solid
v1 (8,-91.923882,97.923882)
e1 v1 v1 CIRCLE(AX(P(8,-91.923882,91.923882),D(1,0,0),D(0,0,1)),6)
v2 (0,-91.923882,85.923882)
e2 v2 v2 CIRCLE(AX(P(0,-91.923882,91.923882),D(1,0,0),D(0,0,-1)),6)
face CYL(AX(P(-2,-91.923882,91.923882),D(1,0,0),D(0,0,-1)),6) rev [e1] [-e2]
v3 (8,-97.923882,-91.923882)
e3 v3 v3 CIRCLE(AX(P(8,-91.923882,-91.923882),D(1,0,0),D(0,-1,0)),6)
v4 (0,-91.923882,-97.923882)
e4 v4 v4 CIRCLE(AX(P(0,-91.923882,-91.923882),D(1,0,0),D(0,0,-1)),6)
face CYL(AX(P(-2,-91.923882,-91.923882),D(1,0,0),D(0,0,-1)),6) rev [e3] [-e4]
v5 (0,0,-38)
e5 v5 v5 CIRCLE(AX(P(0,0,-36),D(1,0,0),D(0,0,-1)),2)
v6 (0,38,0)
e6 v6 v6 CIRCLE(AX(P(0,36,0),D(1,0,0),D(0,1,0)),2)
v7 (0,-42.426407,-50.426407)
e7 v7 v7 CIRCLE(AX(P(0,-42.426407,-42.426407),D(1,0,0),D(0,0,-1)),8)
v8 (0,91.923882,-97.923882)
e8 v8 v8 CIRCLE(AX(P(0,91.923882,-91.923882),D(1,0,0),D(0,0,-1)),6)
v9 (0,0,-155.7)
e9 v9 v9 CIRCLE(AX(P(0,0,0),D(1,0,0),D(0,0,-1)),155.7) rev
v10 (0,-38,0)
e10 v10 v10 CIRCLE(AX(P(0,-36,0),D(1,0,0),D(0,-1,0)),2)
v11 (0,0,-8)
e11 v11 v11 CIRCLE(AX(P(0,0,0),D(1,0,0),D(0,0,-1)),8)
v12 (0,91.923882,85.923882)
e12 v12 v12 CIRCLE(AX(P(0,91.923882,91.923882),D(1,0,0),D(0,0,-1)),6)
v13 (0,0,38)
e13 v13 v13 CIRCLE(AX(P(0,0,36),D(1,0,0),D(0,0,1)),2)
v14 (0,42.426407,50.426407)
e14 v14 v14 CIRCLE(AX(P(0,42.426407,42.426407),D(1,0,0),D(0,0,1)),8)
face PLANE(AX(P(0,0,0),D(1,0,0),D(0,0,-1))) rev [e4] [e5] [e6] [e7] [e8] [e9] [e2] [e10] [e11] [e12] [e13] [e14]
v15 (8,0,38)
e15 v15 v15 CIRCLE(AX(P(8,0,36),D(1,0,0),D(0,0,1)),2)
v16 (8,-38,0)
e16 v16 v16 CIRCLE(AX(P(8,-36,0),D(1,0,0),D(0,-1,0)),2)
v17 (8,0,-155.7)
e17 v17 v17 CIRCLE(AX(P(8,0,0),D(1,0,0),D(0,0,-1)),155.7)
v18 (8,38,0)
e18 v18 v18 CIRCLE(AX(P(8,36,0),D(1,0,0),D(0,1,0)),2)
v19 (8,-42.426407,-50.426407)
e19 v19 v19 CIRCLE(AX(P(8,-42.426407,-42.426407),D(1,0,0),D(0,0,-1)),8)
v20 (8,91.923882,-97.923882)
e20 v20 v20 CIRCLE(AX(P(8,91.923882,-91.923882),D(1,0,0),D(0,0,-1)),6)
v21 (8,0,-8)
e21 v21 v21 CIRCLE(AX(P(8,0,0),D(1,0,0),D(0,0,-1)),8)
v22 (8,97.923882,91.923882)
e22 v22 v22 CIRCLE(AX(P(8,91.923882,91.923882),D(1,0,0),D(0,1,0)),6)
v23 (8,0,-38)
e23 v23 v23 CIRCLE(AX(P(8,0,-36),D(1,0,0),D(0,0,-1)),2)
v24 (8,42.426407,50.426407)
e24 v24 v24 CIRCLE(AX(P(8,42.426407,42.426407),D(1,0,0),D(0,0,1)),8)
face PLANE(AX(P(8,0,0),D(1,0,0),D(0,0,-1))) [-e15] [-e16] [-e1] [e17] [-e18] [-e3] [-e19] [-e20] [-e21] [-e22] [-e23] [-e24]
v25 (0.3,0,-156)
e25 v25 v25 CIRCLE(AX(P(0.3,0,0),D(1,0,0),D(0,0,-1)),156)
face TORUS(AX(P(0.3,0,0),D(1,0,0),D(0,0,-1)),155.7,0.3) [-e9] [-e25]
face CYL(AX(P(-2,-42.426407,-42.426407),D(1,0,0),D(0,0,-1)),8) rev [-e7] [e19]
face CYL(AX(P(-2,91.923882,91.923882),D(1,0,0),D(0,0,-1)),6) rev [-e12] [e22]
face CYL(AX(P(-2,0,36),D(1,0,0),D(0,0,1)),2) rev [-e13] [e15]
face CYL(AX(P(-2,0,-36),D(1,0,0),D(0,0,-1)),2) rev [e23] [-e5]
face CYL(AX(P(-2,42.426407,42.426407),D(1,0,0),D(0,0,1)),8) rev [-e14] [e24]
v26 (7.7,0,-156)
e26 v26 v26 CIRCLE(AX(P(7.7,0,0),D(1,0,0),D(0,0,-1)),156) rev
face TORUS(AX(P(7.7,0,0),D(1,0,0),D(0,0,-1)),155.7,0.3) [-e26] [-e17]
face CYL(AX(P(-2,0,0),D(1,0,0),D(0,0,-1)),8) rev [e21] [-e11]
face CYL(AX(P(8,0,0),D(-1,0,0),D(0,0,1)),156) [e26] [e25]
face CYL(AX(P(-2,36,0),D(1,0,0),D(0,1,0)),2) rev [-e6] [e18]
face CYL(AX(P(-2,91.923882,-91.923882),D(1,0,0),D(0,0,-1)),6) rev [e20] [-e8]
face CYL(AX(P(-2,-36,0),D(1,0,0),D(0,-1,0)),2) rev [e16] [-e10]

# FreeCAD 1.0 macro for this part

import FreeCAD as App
import Part
import Sketcher


def edges_at(feature, points):
    """Names of the edges that pass closest to the given points."""
    edges = feature.Shape.Edges
    near = lambda p: min(range(len(edges)), key=lambda i: edges[i].distToShape(Part.Vertex(*p))[0])
    return sorted({f"Edge{near(p) + 1}" for p in points})

doc = App.newDocument("Part")
body = doc.addObject("PartDesign::Body", "Body")

# Sketch on YZ plane
sketch1 = body.newObject("Sketcher::SketchObject", "Sketch")
sketch1.AttachmentSupport = (doc.getObject("YZ_Plane"), [""])
sketch1.MapMode = "FlatFace"
sketch1.addGeometry(Part.Circle(App.Vector(0, 0, 0), App.Vector(0, 0, 1), 156), False)
sketch1.addConstraint(Sketcher.Constraint("Coincident", 0, 3, -1, 1))
sketch1.addConstraint(Sketcher.Constraint("Diameter", 0, 312.0))
pad1 = body.newObject("PartDesign::Pad", "Pad")
pad1.Profile = sketch1
pad1.Length = 8

# Sketch on YZ plane
sketch2 = body.newObject("Sketcher::SketchObject", "Sketch001")
sketch2.AttachmentSupport = (doc.getObject("YZ_Plane"), [""])
sketch2.MapMode = "FlatFace"
sketch2.AttachmentOffset = App.Placement(App.Vector(0, 0, 8), App.Rotation())
sketch2.addGeometry(Part.Circle(App.Vector(91.923882, -91.923882, 0), App.Vector(0, 0, 1), 6), False)
sketch2.addConstraint(Sketcher.Constraint("Diameter", 0, 12.0))
sketch2.addConstraint(Sketcher.Constraint("DistanceX", -1, 1, 0, 3, 91.923882))
sketch2.addConstraint(Sketcher.Constraint("DistanceY", 0, 3, -1, 1, 91.923882))
pocket1 = body.newObject("PartDesign::Pocket", "Pocket")
pocket1.Profile = sketch2
pocket1.Length = 10
doc.recompute()

polarpattern = body.newObject("PartDesign::PolarPattern", "PolarPattern")
polarpattern.Originals = [pocket1]
polarpattern.Axis = (doc.getObject("X_Axis"), [""])
polarpattern.Angle = 360
polarpattern.Occurrences = 4
body.Tip = polarpattern
doc.recompute()

fillet = body.newObject("PartDesign::Fillet", "Fillet")
fillet.Base = (polarpattern, edges_at(polarpattern, [(0, 0, 156), (8, 0, 156)]))
fillet.Radius = 0.3

# Sketch on YZ plane
sketch3 = body.newObject("Sketcher::SketchObject", "Sketch002")
sketch3.AttachmentSupport = (doc.getObject("YZ_Plane"), [""])
sketch3.MapMode = "FlatFace"
sketch3.AttachmentOffset = App.Placement(App.Vector(0, 0, 8), App.Rotation())
sketch3.addGeometry(Part.Circle(App.Vector(-42.426407, -42.426407, 0), App.Vector(0, 0, 1), 8), False)
sketch3.addConstraint(Sketcher.Constraint("Diameter", 0, 16.0))
sketch3.addConstraint(Sketcher.Constraint("DistanceX", 0, 3, -1, 1, 42.426407))
sketch3.addConstraint(Sketcher.Constraint("DistanceY", 0, 3, -1, 1, 42.426407))
pocket2 = body.newObject("PartDesign::Pocket", "Pocket001")
pocket2.Profile = sketch3
pocket2.Length = 10
doc.recompute()

polarpattern2 = body.newObject("PartDesign::PolarPattern", "PolarPattern001")
polarpattern2.Originals = [pocket2]
polarpattern2.Axis = (doc.getObject("X_Axis"), [""])
polarpattern2.Angle = 360
polarpattern2.Occurrences = 2
body.Tip = polarpattern2

# Sketch on YZ plane
sketch4 = body.newObject("Sketcher::SketchObject", "Sketch003")
sketch4.AttachmentSupport = (doc.getObject("YZ_Plane"), [""])
sketch4.MapMode = "FlatFace"
sketch4.AttachmentOffset = App.Placement(App.Vector(0, 0, 8), App.Rotation())
sketch4.addGeometry(Part.Circle(App.Vector(0, 0, 0), App.Vector(0, 0, 1), 8), False)
sketch4.addConstraint(Sketcher.Constraint("Coincident", 0, 3, -1, 1))
sketch4.addConstraint(Sketcher.Constraint("Diameter", 0, 16.0))
pocket3 = body.newObject("PartDesign::Pocket", "Pocket002")
pocket3.Profile = sketch4
pocket3.Length = 10

# Sketch on YZ plane
sketch5 = body.newObject("Sketcher::SketchObject", "Sketch004")
sketch5.AttachmentSupport = (doc.getObject("YZ_Plane"), [""])
sketch5.MapMode = "FlatFace"
sketch5.AttachmentOffset = App.Placement(App.Vector(0, 0, 8), App.Rotation())
sketch5.addGeometry(Part.Circle(App.Vector(0, -36, 0), App.Vector(0, 0, 1), 2), False)
sketch5.addConstraint(Sketcher.Constraint("PointOnObject", 0, 3, -2))
sketch5.addConstraint(Sketcher.Constraint("Diameter", 0, 4.0))
sketch5.addConstraint(Sketcher.Constraint("DistanceY", 0, 3, -1, 1, 36.0))
pocket4 = body.newObject("PartDesign::Pocket", "Pocket003")
pocket4.Profile = sketch5
pocket4.Length = 10
doc.recompute()

polarpattern3 = body.newObject("PartDesign::PolarPattern", "PolarPattern002")
polarpattern3.Originals = [pocket4]
polarpattern3.Axis = (doc.getObject("X_Axis"), [""])
polarpattern3.Angle = 360
polarpattern3.Occurrences = 4
body.Tip = polarpattern3

doc.recompute()
